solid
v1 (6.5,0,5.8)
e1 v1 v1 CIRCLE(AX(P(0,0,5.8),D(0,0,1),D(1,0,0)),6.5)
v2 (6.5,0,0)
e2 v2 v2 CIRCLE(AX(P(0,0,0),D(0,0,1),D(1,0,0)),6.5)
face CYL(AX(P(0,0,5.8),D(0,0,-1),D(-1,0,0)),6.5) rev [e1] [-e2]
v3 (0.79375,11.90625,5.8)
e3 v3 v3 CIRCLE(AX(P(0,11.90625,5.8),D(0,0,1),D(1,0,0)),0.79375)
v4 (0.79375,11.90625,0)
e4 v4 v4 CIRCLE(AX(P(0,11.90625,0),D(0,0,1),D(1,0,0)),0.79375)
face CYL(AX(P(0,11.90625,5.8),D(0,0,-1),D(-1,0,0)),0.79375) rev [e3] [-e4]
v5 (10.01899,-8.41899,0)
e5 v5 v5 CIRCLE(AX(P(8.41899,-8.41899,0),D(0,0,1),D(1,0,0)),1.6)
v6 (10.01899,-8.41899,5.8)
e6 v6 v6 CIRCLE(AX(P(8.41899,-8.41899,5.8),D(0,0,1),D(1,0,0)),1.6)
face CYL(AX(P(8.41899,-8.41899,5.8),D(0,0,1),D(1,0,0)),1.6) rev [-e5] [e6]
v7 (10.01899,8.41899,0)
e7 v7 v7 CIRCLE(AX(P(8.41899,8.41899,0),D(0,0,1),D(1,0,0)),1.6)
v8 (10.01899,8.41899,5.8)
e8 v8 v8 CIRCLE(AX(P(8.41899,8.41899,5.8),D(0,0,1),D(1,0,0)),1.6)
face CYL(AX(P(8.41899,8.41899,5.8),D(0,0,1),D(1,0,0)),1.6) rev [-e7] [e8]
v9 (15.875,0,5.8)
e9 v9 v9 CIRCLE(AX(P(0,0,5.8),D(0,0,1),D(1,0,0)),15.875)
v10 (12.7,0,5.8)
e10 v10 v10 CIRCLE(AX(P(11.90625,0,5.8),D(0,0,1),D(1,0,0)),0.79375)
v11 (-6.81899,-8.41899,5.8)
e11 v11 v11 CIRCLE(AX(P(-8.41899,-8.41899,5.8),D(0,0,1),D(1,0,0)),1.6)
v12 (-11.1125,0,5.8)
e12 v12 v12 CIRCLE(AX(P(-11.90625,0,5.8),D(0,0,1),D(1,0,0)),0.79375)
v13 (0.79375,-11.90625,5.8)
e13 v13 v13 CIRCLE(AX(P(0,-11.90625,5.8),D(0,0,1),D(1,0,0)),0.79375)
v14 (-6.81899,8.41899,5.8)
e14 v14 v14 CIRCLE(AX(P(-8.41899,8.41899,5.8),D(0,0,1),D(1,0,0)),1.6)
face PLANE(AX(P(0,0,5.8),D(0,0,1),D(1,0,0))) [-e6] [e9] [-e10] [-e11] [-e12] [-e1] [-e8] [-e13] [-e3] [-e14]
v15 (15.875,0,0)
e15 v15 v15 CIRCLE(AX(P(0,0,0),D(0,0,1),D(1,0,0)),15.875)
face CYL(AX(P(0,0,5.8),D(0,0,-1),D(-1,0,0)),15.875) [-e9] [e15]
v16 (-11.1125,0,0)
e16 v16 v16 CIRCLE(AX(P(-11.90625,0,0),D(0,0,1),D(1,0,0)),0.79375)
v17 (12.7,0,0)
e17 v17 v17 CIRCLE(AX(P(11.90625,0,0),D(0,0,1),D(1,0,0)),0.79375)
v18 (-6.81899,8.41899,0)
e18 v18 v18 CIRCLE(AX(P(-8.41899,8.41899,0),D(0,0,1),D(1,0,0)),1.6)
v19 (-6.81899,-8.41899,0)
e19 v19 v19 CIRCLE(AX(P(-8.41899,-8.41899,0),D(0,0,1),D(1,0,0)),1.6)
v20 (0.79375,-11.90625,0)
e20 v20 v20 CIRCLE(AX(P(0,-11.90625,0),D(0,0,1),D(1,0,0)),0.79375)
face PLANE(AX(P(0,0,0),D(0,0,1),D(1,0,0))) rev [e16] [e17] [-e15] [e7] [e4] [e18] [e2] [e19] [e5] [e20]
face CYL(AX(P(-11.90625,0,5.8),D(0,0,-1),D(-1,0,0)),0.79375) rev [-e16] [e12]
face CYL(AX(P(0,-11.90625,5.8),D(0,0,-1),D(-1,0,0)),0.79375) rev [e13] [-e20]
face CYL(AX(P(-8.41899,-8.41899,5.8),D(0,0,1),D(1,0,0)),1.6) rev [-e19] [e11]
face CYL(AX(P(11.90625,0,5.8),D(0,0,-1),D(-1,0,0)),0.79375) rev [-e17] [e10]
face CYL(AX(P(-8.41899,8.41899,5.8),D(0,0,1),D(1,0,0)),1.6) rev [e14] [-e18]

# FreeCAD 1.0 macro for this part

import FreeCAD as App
import Part
import Sketcher

V = App.Vector
Q = App.Units.Quantity

doc = App.newDocument("Part")
body = doc.addObject("PartDesign::Body", "Body")

# Sketch on XY plane
sketch1 = doc.addObject("Sketcher::SketchObject", "Sketch")
body.addObject(sketch1)
sketch1.AttachmentSupport = (doc.XY_Plane, [""])
sketch1.MapMode = "FlatFace"
sketch1.addGeometry([
    Part.Circle(V(0, 0, 0), V(0, 0, 1), 15.9),  # 0
    Part.Circle(V(0, -11.9, 0), V(0, 0, 1), 0.8),  # 1
    Part.Circle(V(-11.9, 0, 0), V(0, 0, 1), 0.8),  # 2
    Part.Circle(V(0, 0, 0), V(0, 0, 1), 6.5),  # 3
    Part.Circle(V(11.9, 0, 0), V(0, 0, 1), 0.8),  # 4
    Part.Circle(V(0, 11.9, 0), V(0, 0, 1), 0.8),  # 5
], False)
sketch1.addConstraint([
    Sketcher.Constraint("Coincident", 0, 3, -1, 1),
    Sketcher.Constraint("Coincident", 3, 3, -1, 1),
    Sketcher.Constraint("Equal", 1, 2),
    Sketcher.Constraint("Equal", 2, 4),
    Sketcher.Constraint("Equal", 4, 5),
    Sketcher.Constraint("Symmetric", 2, 3, 4, 3, -1, 1),
    Sketcher.Constraint("Symmetric", 1, 3, 5, 3, -1, 1),
    Sketcher.Constraint("PointOnObject", 1, 3, -2),
    Sketcher.Constraint("PointOnObject", 2, 3, -1),
    Sketcher.Constraint("Diameter", 3, Q("13 mm")),
    Sketcher.Constraint("Diameter", 0, Q("31.75 mm")),
    Sketcher.Constraint("Diameter", 1, Q("1.5875 mm")),
    Sketcher.Constraint("DistanceX", 2, 3, 4, 3, Q("23.8125 mm")),
    Sketcher.Constraint("DistanceY", 1, 3, 5, 3, Q("23.8125 mm")),
])
pad1 = doc.addObject("PartDesign::Pad", "Pad")
body.addObject(pad1)
pad1.Profile = sketch1
pad1.Length = 5.8

# Sketch on XY plane
sketch2 = doc.addObject("Sketcher::SketchObject", "Sketch001")
body.addObject(sketch2)
sketch2.AttachmentSupport = (doc.XY_Plane, [""])
sketch2.MapMode = "FlatFace"
sketch2.AttachmentOffset = App.Placement(V(0, 0, 5.8), App.Rotation())
sketch2.addGeometry([
    Part.Circle(V(-8.4, 8.4, 0), V(0, 0, 1), 1.6),
    Part.Circle(V(8.4, 8.4, 0), V(0, 0, 1), 1.6),
    Part.Circle(V(8.4, -8.4, 0), V(0, 0, 1), 1.6),
    Part.Circle(V(-8.4, -8.4, 0), V(0, 0, 1), 1.6),
], False)
sketch2.addConstraint([
    Sketcher.Constraint("Equal", 0, 1),
    Sketcher.Constraint("Equal", 1, 2),
    Sketcher.Constraint("Equal", 2, 3),
    Sketcher.Constraint("Symmetric", 0, 3, 2, 3, -1, 1),
    Sketcher.Constraint("Symmetric", 1, 3, 3, 3, -1, 1),
    Sketcher.Constraint("Symmetric", 0, 3, 1, 3, -2),
    Sketcher.Constraint("Diameter", 0, Q("3.2 mm")),
    Sketcher.Constraint("DistanceX", 0, 3, -1, 1, Q("8.41899 mm")),
    Sketcher.Constraint("DistanceY", -1, 1, 0, 3, Q("8.41899 mm")),
])
doc.recompute()
hole = doc.addObject("PartDesign::Hole", "Hole")
body.addObject(hole)
hole.Profile = sketch2
hole.ThreadType = "None"
hole.Diameter = 3.2
hole.DepthType = "Dimension"
hole.Depth = 5.8
hole.DrillPoint = "Angled"
hole.DrillPointAngle = 118

doc.recompute()
